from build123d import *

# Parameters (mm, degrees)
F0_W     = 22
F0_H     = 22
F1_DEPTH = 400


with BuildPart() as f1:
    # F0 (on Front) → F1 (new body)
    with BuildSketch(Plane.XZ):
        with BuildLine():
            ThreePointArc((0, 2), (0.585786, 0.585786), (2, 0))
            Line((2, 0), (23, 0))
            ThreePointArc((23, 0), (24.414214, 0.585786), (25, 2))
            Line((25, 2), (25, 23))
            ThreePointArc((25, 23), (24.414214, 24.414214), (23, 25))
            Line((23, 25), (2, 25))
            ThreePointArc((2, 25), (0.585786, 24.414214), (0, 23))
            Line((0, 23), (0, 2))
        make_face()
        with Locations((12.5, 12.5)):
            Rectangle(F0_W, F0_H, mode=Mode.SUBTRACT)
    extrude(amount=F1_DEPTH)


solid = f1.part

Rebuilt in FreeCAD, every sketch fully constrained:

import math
import FreeCAD as App
import Part
import Sketcher

V = App.Vector
Q = App.Units.Quantity


def add_polygon(sketch, points):
    """Adds a closed chain of lines whose ends are joined by coincident constraints."""
    first, n = sketch.GeometryCount, len(points)
    for a, b in zip(points, points[1:] + points[:1]):
        sketch.addGeometry(Part.LineSegment(App.Vector(*a, 0), App.Vector(*b, 0)), False)
    for i in range(n):
        sketch.addConstraint(Sketcher.Constraint("Coincident", first + i, 2, first + (i + 1) % n, 1))

doc = App.newDocument("Part")
params = doc.addObject("Spreadsheet::Sheet", "Params")
for row, (alias, value) in enumerate([
    ("sketch1_radius", "1.999999 mm"),
    ("sketch1_width", "21 mm"),
    ("sketch1_width2", "22 mm"),
    ("pad1_length", "400 mm"),
], start=1):
    params.set(f"A{row}", alias)
    params.set(f"B{row}", "=" + value)
    params.setAlias(f"B{row}", alias)

body = doc.addObject("PartDesign::Body", "Body")

sketch1 = doc.addObject("Sketcher::SketchObject", "Sketch")
body.addObject(sketch1)
sketch1.AttachmentSupport = (doc.XZ_Plane, [""])
sketch1.MapMode = "FlatFace"
sketch1.addGeometry(Part.ArcOfCircle(Part.Circle(V(2, 2, 0), V(0, 0, 1), 2), math.radians(180), math.radians(270)), False)
sketch1.addGeometry(Part.LineSegment(V(2, 0, 0), V(23, 0, 0)), False)
sketch1.addGeometry(Part.ArcOfCircle(Part.Circle(V(23, 2, 0), V(0, 0, 1), 2), math.radians(-90), math.radians(0)), False)
sketch1.addGeometry(Part.LineSegment(V(25, 2, 0), V(25, 23, 0)), False)
sketch1.addGeometry(Part.ArcOfCircle(Part.Circle(V(23, 23, 0), V(0, 0, 1), 2), math.radians(0), math.radians(90)), False)
sketch1.addGeometry(Part.LineSegment(V(23, 25, 0), V(2, 25, 0)), False)
sketch1.addGeometry(Part.ArcOfCircle(Part.Circle(V(2, 23, 0), V(0, 0, 1), 2), math.radians(90), math.radians(180)), False)
sketch1.addGeometry(Part.LineSegment(V(0, 23, 0), V(0, 2, 0)), False)
add_polygon(sketch1, [(23.5, 1.5), (1.5, 1.5), (1.5, 23.5), (23.5, 23.5)])
sketch1.addConstraint(Sketcher.Constraint("Tangent", 0, 2, 1, 1))
sketch1.addConstraint(Sketcher.Constraint("Tangent", 1, 2, 2, 1))
sketch1.addConstraint(Sketcher.Constraint("Tangent", 2, 2, 3, 1))
sketch1.addConstraint(Sketcher.Constraint("Tangent", 3, 2, 4, 1))
sketch1.addConstraint(Sketcher.Constraint("Tangent", 4, 2, 5, 1))
sketch1.addConstraint(Sketcher.Constraint("Tangent", 5, 2, 6, 1))
sketch1.addConstraint(Sketcher.Constraint("Tangent", 6, 2, 7, 1))
sketch1.addConstraint(Sketcher.Constraint("Tangent", 7, 2, 0, 1))
sketch1.addConstraint(Sketcher.Constraint("Horizontal", 1))
sketch1.addConstraint(Sketcher.Constraint("Vertical", 3))
sketch1.addConstraint(Sketcher.Constraint("Horizontal", 5))
sketch1.addConstraint(Sketcher.Constraint("Vertical", 7))
sketch1.addConstraint(Sketcher.Constraint("Horizontal", 8))
sketch1.addConstraint(Sketcher.Constraint("Vertical", 9))
sketch1.addConstraint(Sketcher.Constraint("Horizontal", 10))
sketch1.addConstraint(Sketcher.Constraint("Vertical", 11))
sketch1.addConstraint(Sketcher.Constraint("Equal", 0, 2))
sketch1.addConstraint(Sketcher.Constraint("Equal", 2, 4))
sketch1.addConstraint(Sketcher.Constraint("Equal", 4, 6))
sketch1.addConstraint(Sketcher.Constraint("PointOnObject", 0, 2, -1))
sketch1.addConstraint(Sketcher.Constraint("PointOnObject", 6, 2, -2))
sketch1.addConstraint(Sketcher.Constraint("Equal", 5, 3))
sketch1.addConstraint(Sketcher.Constraint("Equal", 10, 9))
sketch1.addConstraint(Sketcher.Constraint("Radius", 0, Q("1.999999 mm")))
sketch1.addConstraint(Sketcher.Constraint("DistanceX", 1, 1, 1, 2, Q("21 mm")))
sketch1.addConstraint(Sketcher.Constraint("DistanceX", 8, 2, 8, 1, Q("22 mm")))
sketch1.addConstraint(Sketcher.Constraint("DistanceX", -1, 1, 8, 2, Q("1.5 mm")))
sketch1.addConstraint(Sketcher.Constraint("DistanceY", -1, 1, 8, 2, Q("1.5 mm")))
sketch1.setExpression("Constraints[27]", "Params.sketch1_radius")
sketch1.setExpression("Constraints[28]", "Params.sketch1_width")
sketch1.setExpression("Constraints[29]", "Params.sketch1_width2")
pad1 = doc.addObject("PartDesign::Pad", "Pad")
body.addObject(pad1)
pad1.Profile = sketch1
pad1.setExpression("Length", "Params.pad1_length")

doc.recompute()
